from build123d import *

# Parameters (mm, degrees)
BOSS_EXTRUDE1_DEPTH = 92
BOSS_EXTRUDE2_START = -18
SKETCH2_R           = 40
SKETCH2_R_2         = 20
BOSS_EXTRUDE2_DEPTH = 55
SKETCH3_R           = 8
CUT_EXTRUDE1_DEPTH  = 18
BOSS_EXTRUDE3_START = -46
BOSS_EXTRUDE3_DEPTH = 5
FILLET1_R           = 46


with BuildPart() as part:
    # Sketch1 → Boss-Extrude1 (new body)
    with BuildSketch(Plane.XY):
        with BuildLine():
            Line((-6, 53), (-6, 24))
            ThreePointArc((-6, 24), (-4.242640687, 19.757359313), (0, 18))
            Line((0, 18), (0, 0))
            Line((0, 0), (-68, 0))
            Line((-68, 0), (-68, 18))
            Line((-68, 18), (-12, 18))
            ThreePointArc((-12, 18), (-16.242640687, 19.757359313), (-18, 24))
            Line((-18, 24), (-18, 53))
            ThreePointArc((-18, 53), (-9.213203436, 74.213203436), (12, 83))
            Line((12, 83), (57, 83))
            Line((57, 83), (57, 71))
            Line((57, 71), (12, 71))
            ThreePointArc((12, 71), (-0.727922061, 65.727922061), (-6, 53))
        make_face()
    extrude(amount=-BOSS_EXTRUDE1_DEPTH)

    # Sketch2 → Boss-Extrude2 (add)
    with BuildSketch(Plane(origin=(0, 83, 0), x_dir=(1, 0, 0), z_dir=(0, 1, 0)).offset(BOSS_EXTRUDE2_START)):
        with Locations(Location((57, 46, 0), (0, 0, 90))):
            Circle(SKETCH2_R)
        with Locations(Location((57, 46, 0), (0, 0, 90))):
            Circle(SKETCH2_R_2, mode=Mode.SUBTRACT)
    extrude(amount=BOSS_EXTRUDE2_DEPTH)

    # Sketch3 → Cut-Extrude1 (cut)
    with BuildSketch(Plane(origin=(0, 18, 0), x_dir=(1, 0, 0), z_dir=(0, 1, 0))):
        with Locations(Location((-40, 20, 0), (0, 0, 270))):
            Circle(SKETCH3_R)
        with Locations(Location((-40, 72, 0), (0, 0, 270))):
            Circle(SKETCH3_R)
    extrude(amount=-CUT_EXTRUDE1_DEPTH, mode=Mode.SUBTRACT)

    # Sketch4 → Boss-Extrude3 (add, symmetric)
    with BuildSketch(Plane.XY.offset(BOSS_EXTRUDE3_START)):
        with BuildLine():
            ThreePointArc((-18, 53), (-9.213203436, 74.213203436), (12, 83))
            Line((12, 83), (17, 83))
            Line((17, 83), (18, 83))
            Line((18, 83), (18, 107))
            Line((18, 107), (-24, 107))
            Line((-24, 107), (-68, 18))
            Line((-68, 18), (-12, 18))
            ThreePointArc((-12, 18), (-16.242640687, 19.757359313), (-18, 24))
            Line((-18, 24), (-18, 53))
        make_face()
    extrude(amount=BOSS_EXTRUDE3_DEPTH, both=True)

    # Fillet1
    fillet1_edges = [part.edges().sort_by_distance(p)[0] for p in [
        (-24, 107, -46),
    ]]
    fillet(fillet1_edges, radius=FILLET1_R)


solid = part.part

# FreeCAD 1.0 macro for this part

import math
import FreeCAD as App
import Part
import Sketcher
from FreeCAD import Vector


def edges_at(feature, points):
    """Names of the edges that pass closest to the given points."""
    edges = feature.Shape.Edges
    near = lambda p: min(range(len(edges)), key=lambda i: edges[i].distToShape(Part.Vertex(*p))[0])
    return sorted({f"Edge{near(p) + 1}" for p in points})

doc = App.newDocument("Part")
body = doc.addObject("PartDesign::Body", "Body")

# Sketch on XY plane
sketch1 = body.newObject("Sketcher::SketchObject", "Sketch")
sketch1.AttachmentSupport = (doc.getObject("XY_Plane"), [""])
sketch1.MapMode = "FlatFace"
sketch1.addGeometry([
    Part.LineSegment(Vector(-6, 24, 0), Vector(-6, 53, 0)),  # 0
    Part.ArcOfCircle(Part.Circle(Vector(12, 53, 0), Vector(0, 0, 1), 18), math.radians(90), math.radians(180)),  # 1
    Part.LineSegment(Vector(12, 71, 0), Vector(57, 71, 0)),  # 2
    Part.LineSegment(Vector(57, 71, 0), Vector(57, 83, 0)),  # 3
    Part.LineSegment(Vector(57, 83, 0), Vector(12, 83, 0)),  # 4
    Part.ArcOfCircle(Part.Circle(Vector(12, 53, 0), Vector(0, 0, 1), 30), math.radians(90), math.radians(180)),  # 5
    Part.LineSegment(Vector(-18, 53, 0), Vector(-18, 24, 0)),  # 6
    Part.ArcOfCircle(Part.Circle(Vector(-12, 24, 0), Vector(0, 0, 1), 6), math.radians(180), math.radians(270)),  # 7
    Part.LineSegment(Vector(-12, 18, 0), Vector(-68, 18, 0)),  # 8
    Part.LineSegment(Vector(-68, 18, 0), Vector(-68, 0, 0)),  # 9
    Part.LineSegment(Vector(-68, 0, 0), Vector(0, 0, 0)),  # 10
    Part.LineSegment(Vector(0, 0, 0), Vector(0, 18, 0)),  # 11
    Part.ArcOfCircle(Part.Circle(Vector(0, 24, 0), Vector(0, 0, 1), 6), math.radians(180), math.radians(270)),  # 12
], False)
sketch1.addConstraint([
    Sketcher.Constraint("Tangent", 0, 2, 1, 2),
    Sketcher.Constraint("Tangent", 1, 1, 2, 1),
    Sketcher.Constraint("Coincident", 2, 2, 3, 1),
    Sketcher.Constraint("Coincident", 3, 2, 4, 1),
    Sketcher.Constraint("Tangent", 4, 2, 5, 1),
    Sketcher.Constraint("Tangent", 5, 2, 6, 1),
    Sketcher.Constraint("Tangent", 6, 2, 7, 1),
    Sketcher.Constraint("Tangent", 7, 2, 8, 1),
    Sketcher.Constraint("Coincident", 8, 2, 9, 1),
    Sketcher.Constraint("Coincident", 9, 2, 10, 1),
    Sketcher.Constraint("Coincident", 10, 2, 11, 1),
    Sketcher.Constraint("Coincident", 11, 2, 12, 2),
    Sketcher.Constraint("Tangent", 12, 1, 0, 1),
    Sketcher.Constraint("Vertical", 0),
    Sketcher.Constraint("Horizontal", 2),
    Sketcher.Constraint("Vertical", 3),
    Sketcher.Constraint("Horizontal", 4),
    Sketcher.Constraint("Vertical", 6),
    Sketcher.Constraint("Horizontal", 8),
    Sketcher.Constraint("Vertical", 9),
    Sketcher.Constraint("Horizontal", 10),
    Sketcher.Constraint("Vertical", 11),
    Sketcher.Constraint("Coincident", 10, 2, -1, 1),
    Sketcher.Constraint("Coincident", 5, 3, 1, 3),
    Sketcher.Constraint("Equal", 7, 12),
    Sketcher.Constraint("PointOnObject", 12, 3, -2),
    Sketcher.Constraint("Horizontal", 7, 3, 12, 3),
    Sketcher.Constraint("Radius", 1, 18.0),
    Sketcher.Constraint("Radius", 5, 30.0),
    Sketcher.Constraint("Radius", 7, 6.0),
    Sketcher.Constraint("DistanceX", 2, 1, 2, 2, 45.0),
    Sketcher.Constraint("DistanceX", 8, 2, 8, 1, 56.0),
    Sketcher.Constraint("DistanceY", 0, 1, 0, 2, 29.0),
    Sketcher.Constraint("DistanceY", 9, 2, 9, 1, 18.0),
])
pad1 = body.newObject("PartDesign::Pad", "Pad")
pad1.Profile = sketch1
pad1.Length = 92
pad1.Reversed = True

# Sketch on XZ plane
sketch2 = body.newObject("Sketcher::SketchObject", "Sketch001")
sketch2.AttachmentSupport = (doc.getObject("XZ_Plane"), [""])
sketch2.MapMode = "FlatFace"
sketch2.AttachmentOffset = App.Placement(Vector(0, 0, -65), App.Rotation())
sketch2.addGeometry([
    Part.Circle(Vector(57, -46, 0), Vector(0, 0, 1), 40),
    Part.Circle(Vector(57, -46, 0), Vector(0, 0, 1), 20),
], False)
sketch2.addConstraint([
    Sketcher.Constraint("Coincident", 1, 3, 0, 3),
    Sketcher.Constraint("Diameter", 0, 80.0),
    Sketcher.Constraint("Diameter", 1, 40.0),
    Sketcher.Constraint("DistanceX", -1, 1, 0, 3, 57.0),
    Sketcher.Constraint("DistanceY", 0, 3, -1, 1, 46.0),
])
pad2 = body.newObject("PartDesign::Pad", "Pad001")
pad2.Profile = sketch2
pad2.Length = 55
pad2.Reversed = True

# Sketch on XZ plane
sketch3 = body.newObject("Sketcher::SketchObject", "Sketch002")
sketch3.AttachmentSupport = (doc.getObject("XZ_Plane"), [""])
sketch3.MapMode = "FlatFace"
sketch3.AttachmentOffset = App.Placement(Vector(0, 0, -18), App.Rotation())
sketch3.addGeometry([
    Part.Circle(Vector(-40, -20, 0), Vector(0, 0, 1), 8),
    Part.Circle(Vector(-40, -72, 0), Vector(0, 0, 1), 8),
], False)
sketch3.addConstraint([
    Sketcher.Constraint("Equal", 0, 1),
    Sketcher.Constraint("Vertical", 0, 3, 1, 3),
    Sketcher.Constraint("Diameter", 0, 16.0),
    Sketcher.Constraint("DistanceX", 0, 3, -1, 1, 40.0),
    Sketcher.Constraint("DistanceY", 0, 3, -1, 1, 20.0),
    Sketcher.Constraint("DistanceY", 1, 3, -1, 1, 72.0),
])
pocket1 = body.newObject("PartDesign::Pocket", "Pocket")
pocket1.Profile = sketch3
pocket1.Length = 18
pocket1.Reversed = True

# Sketch on XY plane
sketch4 = body.newObject("Sketcher::SketchObject", "Sketch003")
sketch4.AttachmentSupport = (doc.getObject("XY_Plane"), [""])
sketch4.MapMode = "FlatFace"
sketch4.AttachmentOffset = App.Placement(Vector(0, 0, -46), App.Rotation())
sketch4.addGeometry([
    Part.ArcOfCircle(Part.Circle(Vector(12, 53, 0), Vector(0, 0, 1), 30), math.radians(90), math.radians(180)),  # 0
    Part.LineSegment(Vector(12, 83, 0), Vector(18, 83, 0)),  # 1
    Part.LineSegment(Vector(18, 83, 0), Vector(18, 107, 0)),  # 2
    Part.LineSegment(Vector(18, 107, 0), Vector(-24, 107, 0)),  # 3
    Part.LineSegment(Vector(-24, 107, 0), Vector(-68, 18, 0)),  # 4
    Part.LineSegment(Vector(-68, 18, 0), Vector(-12, 18, 0)),  # 5
    Part.ArcOfCircle(Part.Circle(Vector(-12, 24, 0), Vector(0, 0, 1), 6), math.radians(180), math.radians(270)),  # 6
    Part.LineSegment(Vector(-18, 24, 0), Vector(-18, 53, 0)),  # 7
], False)
sketch4.addConstraint([
    Sketcher.Constraint("Tangent", 0, 1, 1, 1),
    Sketcher.Constraint("Coincident", 1, 2, 2, 1),
    Sketcher.Constraint("Coincident", 2, 2, 3, 1),
    Sketcher.Constraint("Coincident", 3, 2, 4, 1),
    Sketcher.Constraint("Coincident", 4, 2, 5, 1),
    Sketcher.Constraint("Tangent", 5, 2, 6, 2),
    Sketcher.Constraint("Tangent", 6, 1, 7, 1),
    Sketcher.Constraint("Tangent", 7, 2, 0, 2),
    Sketcher.Constraint("Horizontal", 1),
    Sketcher.Constraint("Vertical", 2),
    Sketcher.Constraint("Horizontal", 3),
    Sketcher.Constraint("Horizontal", 5),
    Sketcher.Constraint("Vertical", 7),
    Sketcher.Constraint("Radius", 0, 30.0),
    Sketcher.Constraint("Radius", 6, 6.0),
    Sketcher.Constraint("DistanceX", 1, 1, 1, 2, 6.0),
    Sketcher.Constraint("DistanceX", 3, 2, 3, 1, 42.0),
    Sketcher.Constraint("DistanceX", 5, 1, 5, 2, 56.0),
    Sketcher.Constraint("DistanceY", 2, 1, 2, 2, 24.0),
    Sketcher.Constraint("DistanceY", 7, 1, 7, 2, 29.0),
    Sketcher.Constraint("DistanceX", -1, 1, 0, 3, 12.0),
    Sketcher.Constraint("DistanceY", -1, 1, 0, 3, 53.0),
])
pad3 = body.newObject("PartDesign::Pad", "Pad002")
pad3.Profile = sketch4
pad3.Length = 10
pad3.Midplane = True
doc.recompute()

fillet = body.newObject("PartDesign::Fillet", "Fillet")
fillet.Base = (pad3, edges_at(pad3, [(-24, 107, -46)]))
fillet.Radius = 46

doc.recompute()
